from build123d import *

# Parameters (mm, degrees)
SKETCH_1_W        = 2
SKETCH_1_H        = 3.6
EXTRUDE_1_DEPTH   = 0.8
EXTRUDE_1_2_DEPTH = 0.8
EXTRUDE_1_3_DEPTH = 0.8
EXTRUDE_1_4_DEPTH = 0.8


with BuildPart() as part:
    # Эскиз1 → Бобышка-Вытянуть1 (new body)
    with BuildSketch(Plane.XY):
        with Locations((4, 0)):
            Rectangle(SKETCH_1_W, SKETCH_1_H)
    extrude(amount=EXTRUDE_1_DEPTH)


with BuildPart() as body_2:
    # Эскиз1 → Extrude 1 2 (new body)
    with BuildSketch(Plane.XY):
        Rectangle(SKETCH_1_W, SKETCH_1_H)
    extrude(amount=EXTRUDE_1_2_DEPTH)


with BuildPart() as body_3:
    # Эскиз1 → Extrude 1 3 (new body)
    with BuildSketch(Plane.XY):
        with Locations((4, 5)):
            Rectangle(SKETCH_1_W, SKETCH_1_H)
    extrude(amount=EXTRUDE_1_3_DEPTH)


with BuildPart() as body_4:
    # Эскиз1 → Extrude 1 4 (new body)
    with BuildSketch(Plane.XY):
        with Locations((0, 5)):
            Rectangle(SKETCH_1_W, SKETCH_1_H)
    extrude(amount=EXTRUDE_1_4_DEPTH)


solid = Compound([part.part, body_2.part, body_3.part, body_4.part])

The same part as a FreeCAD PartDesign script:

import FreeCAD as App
import Part
import Sketcher
from FreeCAD import Vector
Q = App.Units.Quantity


def add_polygon(sketch, points):
    """Adds a closed chain of lines whose ends are joined by coincident constraints."""
    first, n = sketch.GeometryCount, len(points)
    for a, b in zip(points, points[1:] + points[:1]):
        sketch.addGeometry(Part.LineSegment(App.Vector(*a, 0), App.Vector(*b, 0)), False)
    for i in range(n):
        sketch.addConstraint(Sketcher.Constraint("Coincident", first + i, 2, first + (i + 1) % n, 1))

doc = App.newDocument("Part")
params = doc.addObject("Spreadsheet::Sheet", "Params")
for row, (alias, value) in enumerate([
    ("sketch1_width", "2 mm"),
    ("sketch1_height", "3.6 mm"),
    ("pad1_length", "0.8 mm"),
    ("sketch2_width", "2 mm"),
    ("sketch2_height", "3.6 mm"),
    ("pad2_length", "0.8 mm"),
    ("sketch3_width", "2 mm"),
    ("sketch3_height", "3.6 mm"),
    ("pad3_length", "0.8 mm"),
    ("sketch4_width", "2 mm"),
    ("sketch4_height", "3.6 mm"),
    ("pad4_length", "0.8 mm"),
], start=1):
    params.set(f"A{row}", alias)
    params.set(f"B{row}", "=" + value)
    params.setAlias(f"B{row}", alias)

body = doc.addObject("PartDesign::Body", "Body")

sketch1 = body.newObject("Sketcher::SketchObject", "Sketch")
sketch1.AttachmentSupport = (doc.getObject("XY_Plane"), [""])
sketch1.MapMode = "FlatFace"
add_polygon(sketch1, [(3, 1.8), (3, -1.8), (5, -1.8), (5, 1.8)])
sketch1.addConstraint([
    Sketcher.Constraint("Vertical", 0),
    Sketcher.Constraint("Horizontal", 1),
    Sketcher.Constraint("Vertical", 2),
    Sketcher.Constraint("Horizontal", 3),
    Sketcher.Constraint("DistanceX", 1, 1, 1, 2, Q("2 mm")),
    Sketcher.Constraint("DistanceY", 0, 2, 0, 1, Q("3.6 mm")),
    Sketcher.Constraint("DistanceX", -1, 1, 0, 2, Q("3 mm")),
    Sketcher.Constraint("DistanceY", 0, 2, -1, 1, Q("1.8 mm")),
])
sketch1.setExpression("Constraints[8]", "Params.sketch1_width")
sketch1.setExpression("Constraints[9]", "Params.sketch1_height")
pad1 = body.newObject("PartDesign::Pad", "Pad")
pad1.Profile = sketch1
pad1.setExpression("Length", "Params.pad1_length")
body2 = doc.addObject("PartDesign::Body", "Body001")

sketch2 = body2.newObject("Sketcher::SketchObject", "Sketch001")
sketch2.AttachmentSupport = (doc.getObject("XY_Plane001"), [""])
sketch2.MapMode = "FlatFace"
add_polygon(sketch2, [(-1, 1.8), (-1, -1.8), (1, -1.8), (1, 1.8)])
sketch2.addConstraint([
    Sketcher.Constraint("Vertical", 0),
    Sketcher.Constraint("Horizontal", 1),
    Sketcher.Constraint("Vertical", 2),
    Sketcher.Constraint("Horizontal", 3),
    Sketcher.Constraint("Symmetric", 0, 2, 2, 2, -1, 1),
    Sketcher.Constraint("DistanceX", 1, 1, 1, 2, Q("2 mm")),
    Sketcher.Constraint("DistanceY", 0, 2, 0, 1, Q("3.6 mm")),
])
sketch2.setExpression("Constraints[9]", "Params.sketch2_width")
sketch2.setExpression("Constraints[10]", "Params.sketch2_height")
pad2 = body2.newObject("PartDesign::Pad", "Pad001")
pad2.Profile = sketch2
pad2.setExpression("Length", "Params.pad2_length")
body3 = doc.addObject("PartDesign::Body", "Body002")

sketch3 = body3.newObject("Sketcher::SketchObject", "Sketch002")
sketch3.AttachmentSupport = (doc.getObject("XY_Plane002"), [""])
sketch3.MapMode = "FlatFace"
add_polygon(sketch3, [(3, 6.8), (3, 3.2), (5, 3.2), (5, 6.8)])
sketch3.addConstraint([
    Sketcher.Constraint("Vertical", 0),
    Sketcher.Constraint("Horizontal", 1),
    Sketcher.Constraint("Vertical", 2),
    Sketcher.Constraint("Horizontal", 3),
    Sketcher.Constraint("DistanceX", 1, 1, 1, 2, Q("2 mm")),
    Sketcher.Constraint("DistanceY", 0, 2, 0, 1, Q("3.6 mm")),
    Sketcher.Constraint("DistanceX", -1, 1, 0, 2, Q("3 mm")),
    Sketcher.Constraint("DistanceY", -1, 1, 0, 2, Q("3.2 mm")),
])
sketch3.setExpression("Constraints[8]", "Params.sketch3_width")
sketch3.setExpression("Constraints[9]", "Params.sketch3_height")
pad3 = body3.newObject("PartDesign::Pad", "Pad002")
pad3.Profile = sketch3
pad3.setExpression("Length", "Params.pad3_length")
body4 = doc.addObject("PartDesign::Body", "Body003")

sketch4 = body4.newObject("Sketcher::SketchObject", "Sketch003")
sketch4.AttachmentSupport = (doc.getObject("XY_Plane003"), [""])
sketch4.MapMode = "FlatFace"
add_polygon(sketch4, [(-1, 6.8), (-1, 3.2), (1, 3.2), (1, 6.8)])
sketch4.addConstraint([
    Sketcher.Constraint("Vertical", 0),
    Sketcher.Constraint("Horizontal", 1),
    Sketcher.Constraint("Vertical", 2),
    Sketcher.Constraint("Horizontal", 3),
    Sketcher.Constraint("DistanceX", 1, 1, 1, 2, Q("2 mm")),
    Sketcher.Constraint("DistanceY", 0, 2, 0, 1, Q("3.6 mm")),
    Sketcher.Constraint("DistanceX", 0, 2, -1, 1, Q("1 mm")),
    Sketcher.Constraint("DistanceY", -1, 1, 0, 2, Q("3.2 mm")),
])
sketch4.setExpression("Constraints[8]", "Params.sketch4_width")
sketch4.setExpression("Constraints[9]", "Params.sketch4_height")
pad4 = body4.newObject("PartDesign::Pad", "Pad003")
pad4.Profile = sketch4
pad4.setExpression("Length", "Params.pad4_length")

doc.recompute()
